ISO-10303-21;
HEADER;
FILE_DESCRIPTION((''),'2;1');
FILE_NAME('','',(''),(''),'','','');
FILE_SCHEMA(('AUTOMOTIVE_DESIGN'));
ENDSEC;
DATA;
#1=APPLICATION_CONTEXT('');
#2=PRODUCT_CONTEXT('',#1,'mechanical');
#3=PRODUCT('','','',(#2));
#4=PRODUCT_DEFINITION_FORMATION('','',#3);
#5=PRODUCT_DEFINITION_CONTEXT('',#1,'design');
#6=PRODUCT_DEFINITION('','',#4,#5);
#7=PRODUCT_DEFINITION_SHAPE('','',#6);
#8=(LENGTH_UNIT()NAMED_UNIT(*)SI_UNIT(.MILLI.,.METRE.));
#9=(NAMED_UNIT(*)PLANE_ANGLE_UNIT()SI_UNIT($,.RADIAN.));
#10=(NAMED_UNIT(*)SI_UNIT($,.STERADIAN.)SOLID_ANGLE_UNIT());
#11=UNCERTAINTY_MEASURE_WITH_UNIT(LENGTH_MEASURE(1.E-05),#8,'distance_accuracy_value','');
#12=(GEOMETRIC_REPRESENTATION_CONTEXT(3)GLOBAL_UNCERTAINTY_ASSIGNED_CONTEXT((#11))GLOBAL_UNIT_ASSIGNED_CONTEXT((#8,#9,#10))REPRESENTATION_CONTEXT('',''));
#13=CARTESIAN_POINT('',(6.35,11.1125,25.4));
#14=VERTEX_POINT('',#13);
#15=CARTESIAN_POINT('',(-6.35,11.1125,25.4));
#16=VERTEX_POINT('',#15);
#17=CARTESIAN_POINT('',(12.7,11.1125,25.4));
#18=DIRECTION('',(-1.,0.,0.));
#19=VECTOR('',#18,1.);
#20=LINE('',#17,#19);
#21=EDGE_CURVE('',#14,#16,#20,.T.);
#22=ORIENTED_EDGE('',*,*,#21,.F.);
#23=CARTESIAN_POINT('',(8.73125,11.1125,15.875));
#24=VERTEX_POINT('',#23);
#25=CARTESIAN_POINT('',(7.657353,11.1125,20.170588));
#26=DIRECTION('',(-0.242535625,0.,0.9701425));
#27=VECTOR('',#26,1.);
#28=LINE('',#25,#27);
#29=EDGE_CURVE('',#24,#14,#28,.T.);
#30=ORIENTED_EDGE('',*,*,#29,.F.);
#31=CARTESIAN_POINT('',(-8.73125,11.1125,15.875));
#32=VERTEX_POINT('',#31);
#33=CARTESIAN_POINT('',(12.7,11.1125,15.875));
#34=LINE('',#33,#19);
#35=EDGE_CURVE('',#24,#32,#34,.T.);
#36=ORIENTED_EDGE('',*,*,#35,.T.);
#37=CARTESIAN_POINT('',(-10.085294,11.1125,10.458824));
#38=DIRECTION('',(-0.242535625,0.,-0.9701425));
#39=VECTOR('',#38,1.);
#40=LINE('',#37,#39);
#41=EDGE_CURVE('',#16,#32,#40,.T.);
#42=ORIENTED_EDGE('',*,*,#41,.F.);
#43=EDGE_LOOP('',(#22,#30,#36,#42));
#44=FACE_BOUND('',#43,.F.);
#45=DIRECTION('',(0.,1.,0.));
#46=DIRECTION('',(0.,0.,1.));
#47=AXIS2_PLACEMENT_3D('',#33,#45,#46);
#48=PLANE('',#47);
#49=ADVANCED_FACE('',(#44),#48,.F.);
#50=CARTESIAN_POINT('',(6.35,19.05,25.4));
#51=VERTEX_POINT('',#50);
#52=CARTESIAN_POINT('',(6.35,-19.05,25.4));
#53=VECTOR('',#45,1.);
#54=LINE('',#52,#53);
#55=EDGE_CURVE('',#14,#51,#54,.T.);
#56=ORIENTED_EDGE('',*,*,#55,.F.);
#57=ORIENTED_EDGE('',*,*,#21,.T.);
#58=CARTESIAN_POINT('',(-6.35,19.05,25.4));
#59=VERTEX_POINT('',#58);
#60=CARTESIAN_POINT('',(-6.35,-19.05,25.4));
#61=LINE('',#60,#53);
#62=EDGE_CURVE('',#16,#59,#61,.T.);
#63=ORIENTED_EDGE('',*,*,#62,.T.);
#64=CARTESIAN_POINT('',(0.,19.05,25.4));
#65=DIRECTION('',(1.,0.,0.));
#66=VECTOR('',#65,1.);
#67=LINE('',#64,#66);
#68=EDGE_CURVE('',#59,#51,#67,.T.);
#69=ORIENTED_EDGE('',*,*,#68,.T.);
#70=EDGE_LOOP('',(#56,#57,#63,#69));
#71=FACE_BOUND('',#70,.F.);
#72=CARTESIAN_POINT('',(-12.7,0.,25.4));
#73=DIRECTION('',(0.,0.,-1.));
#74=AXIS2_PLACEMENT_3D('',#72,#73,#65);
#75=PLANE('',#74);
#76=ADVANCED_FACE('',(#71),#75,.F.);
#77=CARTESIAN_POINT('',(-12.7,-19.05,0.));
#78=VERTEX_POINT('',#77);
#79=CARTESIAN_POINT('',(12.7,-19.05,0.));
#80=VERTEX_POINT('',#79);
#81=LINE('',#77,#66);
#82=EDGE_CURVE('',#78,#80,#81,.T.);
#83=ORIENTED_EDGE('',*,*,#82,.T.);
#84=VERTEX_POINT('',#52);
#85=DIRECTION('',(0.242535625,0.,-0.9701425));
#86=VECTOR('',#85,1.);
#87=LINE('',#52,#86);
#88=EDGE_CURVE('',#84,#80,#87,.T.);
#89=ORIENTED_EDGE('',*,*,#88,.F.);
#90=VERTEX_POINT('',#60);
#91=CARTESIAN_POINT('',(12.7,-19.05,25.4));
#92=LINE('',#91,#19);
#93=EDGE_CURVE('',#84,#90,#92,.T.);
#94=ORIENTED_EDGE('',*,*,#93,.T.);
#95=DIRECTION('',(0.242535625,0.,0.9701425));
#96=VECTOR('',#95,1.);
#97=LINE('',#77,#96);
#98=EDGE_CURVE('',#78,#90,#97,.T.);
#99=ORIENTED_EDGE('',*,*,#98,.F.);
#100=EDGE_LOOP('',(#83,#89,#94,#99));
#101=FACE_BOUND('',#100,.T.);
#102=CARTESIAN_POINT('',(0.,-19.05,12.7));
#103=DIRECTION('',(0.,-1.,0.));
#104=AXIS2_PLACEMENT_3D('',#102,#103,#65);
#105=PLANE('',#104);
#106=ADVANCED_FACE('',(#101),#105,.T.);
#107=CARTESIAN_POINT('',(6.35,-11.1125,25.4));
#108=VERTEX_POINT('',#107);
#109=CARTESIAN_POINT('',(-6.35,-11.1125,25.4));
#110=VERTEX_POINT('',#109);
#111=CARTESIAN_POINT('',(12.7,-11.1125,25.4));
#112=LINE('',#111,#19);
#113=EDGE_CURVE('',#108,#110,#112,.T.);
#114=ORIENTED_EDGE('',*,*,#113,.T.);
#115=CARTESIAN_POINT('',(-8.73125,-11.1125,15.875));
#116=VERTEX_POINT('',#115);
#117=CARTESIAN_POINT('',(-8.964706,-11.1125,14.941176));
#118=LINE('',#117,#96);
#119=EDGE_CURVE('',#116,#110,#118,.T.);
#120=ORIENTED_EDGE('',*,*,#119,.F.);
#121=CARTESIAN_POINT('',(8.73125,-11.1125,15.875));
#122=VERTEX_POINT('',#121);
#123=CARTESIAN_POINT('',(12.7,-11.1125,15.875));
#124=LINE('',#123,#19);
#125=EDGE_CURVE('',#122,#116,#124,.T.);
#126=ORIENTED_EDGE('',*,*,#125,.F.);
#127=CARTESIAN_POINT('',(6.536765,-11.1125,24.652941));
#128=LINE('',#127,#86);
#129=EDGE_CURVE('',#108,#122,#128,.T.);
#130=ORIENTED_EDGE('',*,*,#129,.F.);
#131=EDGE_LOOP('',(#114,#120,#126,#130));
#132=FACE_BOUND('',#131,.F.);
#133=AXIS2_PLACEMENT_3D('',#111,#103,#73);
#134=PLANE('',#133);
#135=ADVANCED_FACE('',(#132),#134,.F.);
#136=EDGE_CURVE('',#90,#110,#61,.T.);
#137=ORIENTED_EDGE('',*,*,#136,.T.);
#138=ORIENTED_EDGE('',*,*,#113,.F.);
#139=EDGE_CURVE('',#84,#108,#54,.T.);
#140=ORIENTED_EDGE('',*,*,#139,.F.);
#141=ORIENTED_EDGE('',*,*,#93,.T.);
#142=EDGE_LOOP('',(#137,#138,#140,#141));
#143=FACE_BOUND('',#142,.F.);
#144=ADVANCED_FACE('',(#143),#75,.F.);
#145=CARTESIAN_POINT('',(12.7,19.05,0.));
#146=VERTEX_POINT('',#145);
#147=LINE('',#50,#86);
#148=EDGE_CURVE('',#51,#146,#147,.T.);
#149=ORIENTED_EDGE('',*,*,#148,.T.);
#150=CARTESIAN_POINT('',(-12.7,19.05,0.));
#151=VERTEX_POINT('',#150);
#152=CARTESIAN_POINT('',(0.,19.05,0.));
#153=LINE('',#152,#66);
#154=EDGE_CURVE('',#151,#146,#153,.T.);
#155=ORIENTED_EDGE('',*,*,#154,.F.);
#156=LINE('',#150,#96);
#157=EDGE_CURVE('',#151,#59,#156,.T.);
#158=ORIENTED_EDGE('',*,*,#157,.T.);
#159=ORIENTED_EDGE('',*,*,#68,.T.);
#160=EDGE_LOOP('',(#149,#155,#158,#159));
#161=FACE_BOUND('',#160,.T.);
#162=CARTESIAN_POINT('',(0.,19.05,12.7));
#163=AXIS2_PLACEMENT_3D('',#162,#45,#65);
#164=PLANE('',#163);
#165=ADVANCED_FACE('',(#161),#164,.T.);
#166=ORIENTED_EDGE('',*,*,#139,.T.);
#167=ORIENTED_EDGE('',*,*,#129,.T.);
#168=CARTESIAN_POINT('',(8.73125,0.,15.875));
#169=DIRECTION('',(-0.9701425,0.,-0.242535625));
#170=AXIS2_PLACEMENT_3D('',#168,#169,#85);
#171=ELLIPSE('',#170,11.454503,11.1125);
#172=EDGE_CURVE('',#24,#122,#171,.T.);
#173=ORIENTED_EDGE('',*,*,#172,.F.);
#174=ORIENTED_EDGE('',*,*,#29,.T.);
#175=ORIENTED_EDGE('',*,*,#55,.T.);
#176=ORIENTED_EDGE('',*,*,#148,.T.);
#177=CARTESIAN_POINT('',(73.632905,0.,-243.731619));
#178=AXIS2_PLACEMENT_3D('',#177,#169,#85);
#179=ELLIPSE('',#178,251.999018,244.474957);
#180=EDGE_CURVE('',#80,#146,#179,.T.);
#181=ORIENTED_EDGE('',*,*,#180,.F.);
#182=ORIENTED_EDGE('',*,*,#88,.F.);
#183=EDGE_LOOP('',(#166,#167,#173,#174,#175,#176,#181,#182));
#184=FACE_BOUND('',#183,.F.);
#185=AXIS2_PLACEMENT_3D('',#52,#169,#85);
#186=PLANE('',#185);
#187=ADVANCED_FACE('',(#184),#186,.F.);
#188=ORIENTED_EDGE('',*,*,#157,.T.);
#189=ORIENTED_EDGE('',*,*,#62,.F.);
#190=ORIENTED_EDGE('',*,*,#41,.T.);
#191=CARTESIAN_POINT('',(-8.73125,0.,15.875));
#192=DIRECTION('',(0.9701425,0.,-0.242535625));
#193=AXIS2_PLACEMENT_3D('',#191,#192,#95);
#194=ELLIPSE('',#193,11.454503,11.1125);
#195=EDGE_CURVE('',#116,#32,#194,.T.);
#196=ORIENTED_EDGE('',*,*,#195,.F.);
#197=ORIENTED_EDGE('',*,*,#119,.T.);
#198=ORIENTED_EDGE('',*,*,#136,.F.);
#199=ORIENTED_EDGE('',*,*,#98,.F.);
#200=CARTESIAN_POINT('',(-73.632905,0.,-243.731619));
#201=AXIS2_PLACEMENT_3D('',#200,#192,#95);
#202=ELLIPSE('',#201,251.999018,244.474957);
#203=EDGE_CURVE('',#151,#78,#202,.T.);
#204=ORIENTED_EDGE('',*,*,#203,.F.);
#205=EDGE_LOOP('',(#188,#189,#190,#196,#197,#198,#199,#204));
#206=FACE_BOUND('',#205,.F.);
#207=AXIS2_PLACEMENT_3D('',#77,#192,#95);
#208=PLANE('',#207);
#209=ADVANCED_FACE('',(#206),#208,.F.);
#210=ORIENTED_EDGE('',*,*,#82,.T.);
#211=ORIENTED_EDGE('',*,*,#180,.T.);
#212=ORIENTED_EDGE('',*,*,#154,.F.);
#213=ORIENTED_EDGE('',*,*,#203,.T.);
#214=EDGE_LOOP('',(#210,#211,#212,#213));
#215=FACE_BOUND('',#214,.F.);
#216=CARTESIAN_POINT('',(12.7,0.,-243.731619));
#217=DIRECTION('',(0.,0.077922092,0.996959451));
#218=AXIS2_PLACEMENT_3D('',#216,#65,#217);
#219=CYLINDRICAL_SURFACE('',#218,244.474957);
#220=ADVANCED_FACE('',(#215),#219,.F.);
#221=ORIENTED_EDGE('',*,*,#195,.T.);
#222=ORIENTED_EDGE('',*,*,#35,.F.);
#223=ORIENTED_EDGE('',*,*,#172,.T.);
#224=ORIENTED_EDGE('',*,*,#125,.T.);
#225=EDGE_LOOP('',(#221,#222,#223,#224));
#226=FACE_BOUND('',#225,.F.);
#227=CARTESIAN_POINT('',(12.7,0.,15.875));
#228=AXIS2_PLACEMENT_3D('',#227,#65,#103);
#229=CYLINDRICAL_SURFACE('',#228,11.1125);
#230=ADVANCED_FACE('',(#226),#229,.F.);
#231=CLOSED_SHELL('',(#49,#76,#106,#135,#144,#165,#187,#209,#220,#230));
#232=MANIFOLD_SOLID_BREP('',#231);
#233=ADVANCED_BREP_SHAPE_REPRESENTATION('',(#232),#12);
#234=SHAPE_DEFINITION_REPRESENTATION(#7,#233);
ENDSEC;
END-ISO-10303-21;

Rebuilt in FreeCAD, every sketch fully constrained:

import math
import FreeCAD as App
import Part
import Sketcher
Q = App.Units.Quantity


def add_polygon(sketch, points):
    """Adds a closed chain of lines whose ends are joined by coincident constraints."""
    first, n = sketch.GeometryCount, len(points)
    for a, b in zip(points, points[1:] + points[:1]):
        sketch.addGeometry(Part.LineSegment(App.Vector(*a, 0), App.Vector(*b, 0)), False)
    for i in range(n):
        sketch.addConstraint(Sketcher.Constraint("Coincident", first + i, 2, first + (i + 1) % n, 1))

doc = App.newDocument("Part")
body = doc.addObject("PartDesign::Body", "Body")

# Sketch on XZ plane
sketch1 = doc.addObject("Sketcher::SketchObject", "Sketch")
body.addObject(sketch1)
sketch1.AttachmentSupport = (doc.XZ_Plane, [""])
sketch1.MapMode = "FlatFace"
add_polygon(sketch1, [(-13, 0), (13, 0), (13, 25), (-13, 25)])  # lines 0-3
sketch1.addConstraint([
    Sketcher.Constraint("Horizontal", 0),
    Sketcher.Constraint("Vertical", 1),
    Sketcher.Constraint("Horizontal", 2),
    Sketcher.Constraint("Vertical", 3),
    Sketcher.Constraint("Symmetric", 0, 2, 3, 2, -1, 1),
    Sketcher.Constraint("Equal", 2, 1),
    Sketcher.Constraint("DistanceX", 0, 1, 0, 2, Q("1 in")),
])
pad1 = doc.addObject("PartDesign::Pad", "Pad")
body.addObject(pad1)
pad1.Profile = sketch1
pad1.Length = Q("0.75 in")

# Sketch on XZ plane
sketch2 = doc.addObject("Sketcher::SketchObject", "Sketch001")
body.addObject(sketch2)
sketch2.AttachmentSupport = (doc.XZ_Plane, [""])
sketch2.MapMode = "FlatFace"
add_polygon(sketch2, [(-13, 0), (-13, 25), (13, 25), (13, 0)])  # lines 0-3
sketch2.addConstraint([
    Sketcher.Constraint("Vertical", 0),
    Sketcher.Constraint("Horizontal", 1),
    Sketcher.Constraint("Vertical", 2),
    Sketcher.Constraint("Horizontal", 3),
    Sketcher.Constraint("Symmetric", 2, 2, 3, 2, -1, 1),
    Sketcher.Constraint("Equal", 3, 0),
    Sketcher.Constraint("DistanceX", 1, 1, 1, 2, Q("1 in")),
])
pad2 = doc.addObject("PartDesign::Pad", "Pad001")
body.addObject(pad2)
pad2.Profile = sketch2
pad2.Length = Q("0.75 in")
pad2.Reversed = True

# Sketch on YZ plane
sketch3 = doc.addObject("Sketcher::SketchObject", "Sketch002")
body.addObject(sketch3)
sketch3.AttachmentSupport = (doc.YZ_Plane, [""])
sketch3.MapMode = "FlatFace"
sketch3.AttachmentOffset = App.Placement(App.Vector(0, 0, 0.5 * 25.4), App.Rotation())
sketch3.addGeometry([
    Part.LineSegment(App.Vector(-19, 0, 0), App.Vector(19, 0, 0)),
    Part.ArcOfCircle(Part.Circle(App.Vector(0, -244, 0), App.Vector(0, 0, 1), 244), math.radians(85.53), math.radians(94.47)),
], False)
sketch3.addConstraint([
    Sketcher.Constraint("Coincident", 0, 1, 1, 2),
    Sketcher.Constraint("Coincident", 1, 1, 0, 2),
    Sketcher.Constraint("Horizontal", 0),
    Sketcher.Constraint("Symmetric", 0, 1, 1, 1, -1, 1),
    Sketcher.Constraint("DistanceX", 0, 1, 0, 2, Q("1.5 in")),
    Sketcher.Constraint("Radius", 1, Q("244.474957 mm")),
])
pocket1 = doc.addObject("PartDesign::Pocket", "Pocket")
body.addObject(pocket1)
pocket1.Profile = sketch3
pocket1.Length = Q("1 in")

# Sketch on YZ plane
sketch4 = doc.addObject("Sketcher::SketchObject", "Sketch003")
body.addObject(sketch4)
sketch4.AttachmentSupport = (doc.YZ_Plane, [""])
sketch4.MapMode = "FlatFace"
sketch4.AttachmentOffset = App.Placement(App.Vector(0, 0, 0.5 * 25.4), App.Rotation())
sketch4.addGeometry([
    Part.LineSegment(App.Vector(-11, 25, 0), App.Vector(-11, 16, 0)),
    Part.ArcOfCircle(Part.Circle(App.Vector(0, 16, 0), App.Vector(0, 0, 1), 11), math.radians(180), math.radians(360)),
    Part.LineSegment(App.Vector(11, 16, 0), App.Vector(11, 25, 0)),
    Part.LineSegment(App.Vector(11, 25, 0), App.Vector(-11, 25, 0)),
], False)
sketch4.addConstraint([
    Sketcher.Constraint("Tangent", 0, 2, 1, 1),
    Sketcher.Constraint("Tangent", 1, 2, 2, 1),
    Sketcher.Constraint("Coincident", 2, 2, 3, 1),
    Sketcher.Constraint("Coincident", 3, 2, 0, 1),
    Sketcher.Constraint("Vertical", 0),
    Sketcher.Constraint("Vertical", 2),
    Sketcher.Constraint("Horizontal", 3),
    Sketcher.Constraint("PointOnObject", 1, 3, -2),
    Sketcher.Constraint("DistanceY", -1, 1, 2, 2, Q("1 in")),
    Sketcher.Constraint("Radius", 1, Q("0.4375 in")),
    Sketcher.Constraint("DistanceY", 0, 2, 0, 1, Q("0.375 in")),
])
pocket2 = doc.addObject("PartDesign::Pocket", "Pocket001")
body.addObject(pocket2)
pocket2.Profile = sketch4
pocket2.Length = Q("1 in")

# Sketch on XZ plane
sketch5 = doc.addObject("Sketcher::SketchObject", "Sketch004")
body.addObject(sketch5)
sketch5.AttachmentSupport = (doc.XZ_Plane, [""])
sketch5.MapMode = "FlatFace"
sketch5.AttachmentOffset = App.Placement(App.Vector(0, 0, 0.75 * 25.4), App.Rotation())
add_polygon(sketch5, [(-13, 25), (-13, 0), (-6, 25)])  # lines 0-2
add_polygon(sketch5, [(6, 25), (13, 0), (13, 25)])  # lines 3-5
sketch5.addConstraint([
    Sketcher.Constraint("Vertical", 0),
    Sketcher.Constraint("Horizontal", 2),
    Sketcher.Constraint("Vertical", 4),
    Sketcher.Constraint("Horizontal", 5),
    Sketcher.Constraint("Symmetric", 0, 2, 3, 2, -1, 1),
    Sketcher.Constraint("Symmetric", 1, 2, 5, 2, -2),
    Sketcher.Constraint("PointOnObject", 0, 2, -1),
    Sketcher.Constraint("DistanceY", 0, 2, 0, 1, Q("1 in")),
    Sketcher.Constraint("DistanceX", 0, 2, 3, 2, Q("1 in")),
    Sketcher.Constraint("DistanceX", 2, 2, 2, 1, Q("0.25 in")),
])
pocket3 = doc.addObject("PartDesign::Pocket", "Pocket002")
body.addObject(pocket3)
pocket3.Profile = sketch5
pocket3.Length = Q("1.5 in")

doc.recompute()
